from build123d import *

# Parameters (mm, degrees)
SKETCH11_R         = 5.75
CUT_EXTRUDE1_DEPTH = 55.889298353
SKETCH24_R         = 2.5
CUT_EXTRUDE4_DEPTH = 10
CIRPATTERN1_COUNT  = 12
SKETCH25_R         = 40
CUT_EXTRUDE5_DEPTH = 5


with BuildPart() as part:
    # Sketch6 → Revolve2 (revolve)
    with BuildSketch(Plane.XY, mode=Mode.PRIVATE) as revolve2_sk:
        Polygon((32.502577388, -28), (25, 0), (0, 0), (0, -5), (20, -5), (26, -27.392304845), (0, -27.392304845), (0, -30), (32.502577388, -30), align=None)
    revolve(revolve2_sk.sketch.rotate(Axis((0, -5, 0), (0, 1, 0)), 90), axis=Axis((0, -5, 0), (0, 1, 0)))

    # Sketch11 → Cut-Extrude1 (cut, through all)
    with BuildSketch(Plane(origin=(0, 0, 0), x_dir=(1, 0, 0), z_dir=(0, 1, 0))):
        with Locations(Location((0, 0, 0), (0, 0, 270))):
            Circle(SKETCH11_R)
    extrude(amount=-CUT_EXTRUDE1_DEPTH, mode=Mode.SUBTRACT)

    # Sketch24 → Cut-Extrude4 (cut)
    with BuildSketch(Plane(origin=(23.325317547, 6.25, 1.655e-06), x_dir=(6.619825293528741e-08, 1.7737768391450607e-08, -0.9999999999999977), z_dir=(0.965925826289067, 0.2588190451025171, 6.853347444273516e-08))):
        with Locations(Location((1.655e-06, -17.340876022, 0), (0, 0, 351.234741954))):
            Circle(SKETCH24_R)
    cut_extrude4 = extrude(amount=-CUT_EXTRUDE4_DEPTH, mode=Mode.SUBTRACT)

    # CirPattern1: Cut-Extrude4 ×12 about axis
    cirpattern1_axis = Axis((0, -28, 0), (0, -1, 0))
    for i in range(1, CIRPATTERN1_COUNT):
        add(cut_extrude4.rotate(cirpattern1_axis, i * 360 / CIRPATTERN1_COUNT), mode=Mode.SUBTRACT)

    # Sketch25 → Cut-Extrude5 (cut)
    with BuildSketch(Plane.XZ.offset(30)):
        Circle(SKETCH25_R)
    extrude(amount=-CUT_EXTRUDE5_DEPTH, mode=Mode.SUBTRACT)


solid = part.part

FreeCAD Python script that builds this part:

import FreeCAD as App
import Part
import Sketcher

V = App.Vector
Q = App.Units.Quantity

doc = App.newDocument("Part")
params = doc.addObject("Spreadsheet::Sheet", "Params")
for row, (alias, value) in enumerate([
    ("sketch1_width", "25 mm"),
    ("sketch1_width2", "20 mm"),
    ("sketch1_width3", "26 mm"),
    ("sketch1_height", "5 mm"),
    ("sketch1_height2", "2 mm"),
    ("revolution_angle", "360 deg"),
    ("sketch2_diameter", "11.5 mm"),
    ("sketch3_diameter", "5 mm"),
    ("pocket2_length", "10 mm"),
    ("sketch4_diameter", "80 mm"),
    ("pocket3_length", "5 mm"),
], start=1):
    params.set(f"A{row}", alias)
    params.set(f"B{row}", "=" + value)
    params.setAlias(f"B{row}", alias)

body = doc.addObject("PartDesign::Body", "Body")

# Sketch on XY plane
sketch1 = body.newObject("Sketcher::SketchObject", "Sketch")
sketch1.AttachmentSupport = (doc.getObject("XY_Plane"), [""])
sketch1.MapMode = "FlatFace"
sketch1.addGeometry([
    Part.LineSegment(V(32.502577, -28, 0), V(25, 0, 0)),  # 0
    Part.LineSegment(V(25, 0, 0), V(0, 0, 0)),  # 1
    Part.LineSegment(V(0, 0, 0), V(0, -5, 0)),  # 2
    Part.LineSegment(V(0, -5, 0), V(20, -5, 0)),  # 3
    Part.LineSegment(V(20, -5, 0), V(26, -27.392305, 0)),  # 4
    Part.LineSegment(V(26, -27.392305, 0), V(0, -27.392305, 0)),  # 5
    Part.LineSegment(V(0, -27.392305, 0), V(0, -30, 0)),  # 6
    Part.LineSegment(V(0, -30, 0), V(32.502577, -30, 0)),  # 7
    Part.LineSegment(V(32.502577, -30, 0), V(32.502577, -28, 0)),  # 8
], False)
sketch1.addConstraint([
    Sketcher.Constraint("Coincident", 0, 2, 1, 1),
    Sketcher.Constraint("Coincident", 1, 2, 2, 1),
    Sketcher.Constraint("Coincident", 2, 2, 3, 1),
    Sketcher.Constraint("Coincident", 3, 2, 4, 1),
    Sketcher.Constraint("Coincident", 4, 2, 5, 1),
    Sketcher.Constraint("Coincident", 5, 2, 6, 1),
    Sketcher.Constraint("Coincident", 6, 2, 7, 1),
    Sketcher.Constraint("Coincident", 7, 2, 8, 1),
    Sketcher.Constraint("Coincident", 8, 2, 0, 1),
    Sketcher.Constraint("Horizontal", 1),
    Sketcher.Constraint("Vertical", 2),
    Sketcher.Constraint("Horizontal", 3),
    Sketcher.Constraint("Horizontal", 5),
    Sketcher.Constraint("Vertical", 6),
    Sketcher.Constraint("Horizontal", 7),
    Sketcher.Constraint("Vertical", 8),
    Sketcher.Constraint("Coincident", 1, 2, -1, 1),
    Sketcher.Constraint("PointOnObject", 5, 2, -2),
    Sketcher.Constraint("Parallel", 0, 4),
    Sketcher.Constraint("DistanceX", 1, 2, 1, 1, 25.0),
    Sketcher.Constraint("DistanceX", 3, 1, 3, 2, 20.0),
    Sketcher.Constraint("DistanceX", 5, 2, 5, 1, 26.0),
    Sketcher.Constraint("DistanceY", 2, 2, 2, 1, 5.0),
    Sketcher.Constraint("DistanceY", 8, 1, 8, 2, 2.0),
    Sketcher.Constraint("Angle", 0, Q("105 deg")),
    Sketcher.Constraint("DistanceY", 6, 2, -1, 1, 30.0),
])
sketch1.setExpression("Constraints[19]", "Params.sketch1_width")
sketch1.setExpression("Constraints[20]", "Params.sketch1_width2")
sketch1.setExpression("Constraints[21]", "Params.sketch1_width3")
sketch1.setExpression("Constraints[22]", "Params.sketch1_height")
sketch1.setExpression("Constraints[23]", "Params.sketch1_height2")
revolution = body.newObject("PartDesign::Revolution", "Revolution")
revolution.Profile = sketch1
revolution.ReferenceAxis = (sketch1, ["V_Axis"])
revolution.setExpression("Angle", "Params.revolution_angle")

# Sketch on XZ plane
sketch2 = body.newObject("Sketcher::SketchObject", "Sketch001")
sketch2.AttachmentSupport = (doc.getObject("XZ_Plane"), [""])
sketch2.MapMode = "FlatFace"
sketch2.addGeometry(Part.Circle(V(0, 0, 0), V(0, 0, 1), 5.75), False)
sketch2.addConstraint([
    Sketcher.Constraint("Coincident", 0, 3, -1, 1),
    Sketcher.Constraint("Diameter", 0, 11.5),
])
sketch2.setExpression("Constraints[1]", "Params.sketch2_diameter")
pocket1 = body.newObject("PartDesign::Pocket", "Pocket")
pocket1.Profile = sketch2
pocket1.Type = "ThroughAll"
pocket1.Reversed = True

# Sketch on an angled plane
sketch3 = body.newObject("Sketcher::SketchObject", "Sketch002")
sketch3.Placement = App.Placement(V(23.325318, 6.25, 0.000002), App.Rotation(V(0.000000066, 0.000000018, -1), V(-0.258819045, 0.965925826, 0), V(0.965925826, 0.258819045, 0.000000069), "ZXY"))
sketch3.addGeometry(Part.Circle(V(0.000002, -17.340876, 0), V(0, 0, 1), 2.5), False)
sketch3.addConstraint([
    Sketcher.Constraint("PointOnObject", 0, 3, -2),
    Sketcher.Constraint("Diameter", 0, 5.0),
    Sketcher.Constraint("DistanceY", 0, 3, -1, 1, 17.340876),
])
sketch3.setExpression("Constraints[1]", "Params.sketch3_diameter")
pocket2 = body.newObject("PartDesign::Pocket", "Pocket001")
pocket2.Profile = sketch3
pocket2.setExpression("Length", "Params.pocket2_length")
doc.recompute()

polarpattern = body.newObject("PartDesign::PolarPattern", "PolarPattern")
polarpattern.Originals = [pocket2]
polarpattern.Axis = (doc.getObject("Y_Axis"), [""])
polarpattern.Angle = 360
polarpattern.Occurrences = 12
body.Tip = polarpattern

# Sketch on XZ plane
sketch4 = body.newObject("Sketcher::SketchObject", "Sketch003")
sketch4.AttachmentSupport = (doc.getObject("XZ_Plane"), [""])
sketch4.MapMode = "FlatFace"
sketch4.AttachmentOffset = App.Placement(V(0, 0, 30), App.Rotation())
sketch4.addGeometry(Part.Circle(V(0, 0, 0), V(0, 0, 1), 40), False)
sketch4.addConstraint([
    Sketcher.Constraint("Coincident", 0, 3, -1, 1),
    Sketcher.Constraint("Diameter", 0, 80.0),
])
sketch4.setExpression("Constraints[1]", "Params.sketch4_diameter")
pocket3 = body.newObject("PartDesign::Pocket", "Pocket002")
pocket3.Profile = sketch4
pocket3.setExpression("Length", "Params.pocket3_length")

doc.recompute()
